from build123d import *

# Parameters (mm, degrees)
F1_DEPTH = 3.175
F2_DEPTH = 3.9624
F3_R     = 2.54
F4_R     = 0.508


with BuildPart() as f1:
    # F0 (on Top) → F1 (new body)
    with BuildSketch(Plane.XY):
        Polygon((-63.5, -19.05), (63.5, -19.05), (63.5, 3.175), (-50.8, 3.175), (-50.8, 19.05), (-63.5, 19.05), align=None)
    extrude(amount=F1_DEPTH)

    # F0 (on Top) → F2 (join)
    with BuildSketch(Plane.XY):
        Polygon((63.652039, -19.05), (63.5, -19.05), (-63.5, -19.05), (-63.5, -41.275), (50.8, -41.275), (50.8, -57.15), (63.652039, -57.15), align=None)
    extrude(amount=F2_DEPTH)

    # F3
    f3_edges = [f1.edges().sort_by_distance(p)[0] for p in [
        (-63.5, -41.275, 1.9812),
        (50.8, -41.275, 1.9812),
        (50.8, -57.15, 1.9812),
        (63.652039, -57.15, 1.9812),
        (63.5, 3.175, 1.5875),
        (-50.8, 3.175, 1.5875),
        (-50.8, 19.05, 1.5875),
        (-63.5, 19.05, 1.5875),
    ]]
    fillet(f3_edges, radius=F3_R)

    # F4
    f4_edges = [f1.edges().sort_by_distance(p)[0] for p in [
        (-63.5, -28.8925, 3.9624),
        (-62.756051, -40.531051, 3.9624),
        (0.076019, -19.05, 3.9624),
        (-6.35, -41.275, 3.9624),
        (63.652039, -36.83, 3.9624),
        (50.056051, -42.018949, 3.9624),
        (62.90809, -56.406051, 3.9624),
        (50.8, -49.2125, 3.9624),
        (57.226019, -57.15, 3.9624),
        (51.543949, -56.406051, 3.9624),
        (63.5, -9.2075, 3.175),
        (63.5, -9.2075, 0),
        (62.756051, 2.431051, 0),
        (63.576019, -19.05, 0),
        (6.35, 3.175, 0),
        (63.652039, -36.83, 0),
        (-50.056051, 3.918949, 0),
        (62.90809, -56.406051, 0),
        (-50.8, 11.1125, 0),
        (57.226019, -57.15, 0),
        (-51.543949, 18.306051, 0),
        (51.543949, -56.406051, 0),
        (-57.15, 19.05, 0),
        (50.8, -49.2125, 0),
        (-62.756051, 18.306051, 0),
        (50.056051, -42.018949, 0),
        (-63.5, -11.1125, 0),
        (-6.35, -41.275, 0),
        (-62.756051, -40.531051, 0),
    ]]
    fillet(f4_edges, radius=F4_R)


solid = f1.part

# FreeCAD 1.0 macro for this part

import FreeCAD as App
import Part
import Sketcher

V = App.Vector
Q = App.Units.Quantity


def edges_at(feature, points):
    """Names of the edges that pass closest to the given points."""
    edges = feature.Shape.Edges
    near = lambda p: min(range(len(edges)), key=lambda i: edges[i].distToShape(Part.Vertex(*p))[0])
    return sorted({f"Edge{near(p) + 1}" for p in points})


def add_polygon(sketch, points):
    """Adds a closed chain of lines whose ends are joined by coincident constraints."""
    first, n = sketch.GeometryCount, len(points)
    for a, b in zip(points, points[1:] + points[:1]):
        sketch.addGeometry(Part.LineSegment(App.Vector(*a, 0), App.Vector(*b, 0)), False)
    for i in range(n):
        sketch.addConstraint(Sketcher.Constraint("Coincident", first + i, 2, first + (i + 1) % n, 1))

doc = App.newDocument("Part")
body = doc.addObject("PartDesign::Body", "Body")

sketch1 = doc.addObject("Sketcher::SketchObject", "Sketch")
body.addObject(sketch1)
sketch1.AttachmentSupport = (doc.XY_Plane, [""])
sketch1.MapMode = "FlatFace"
add_polygon(sketch1, [(-64, -19), (64, -19), (64, 3), (-51, 3), (-51, 19), (-64, 19)])
sketch1.addConstraint(Sketcher.Constraint("Horizontal", 0))
sketch1.addConstraint(Sketcher.Constraint("Vertical", 1))
sketch1.addConstraint(Sketcher.Constraint("Horizontal", 2))
sketch1.addConstraint(Sketcher.Constraint("Vertical", 3))
sketch1.addConstraint(Sketcher.Constraint("Horizontal", 4))
sketch1.addConstraint(Sketcher.Constraint("Vertical", 5))
sketch1.addConstraint(Sketcher.Constraint("Symmetric", 0, 2, 4, 2, -1, 1))
sketch1.addConstraint(Sketcher.Constraint("DistanceX", 0, 1, 0, 2, Q("5 in")))
sketch1.addConstraint(Sketcher.Constraint("DistanceX", 2, 2, 2, 1, Q("4.5 in")))
sketch1.addConstraint(Sketcher.Constraint("DistanceY", 5, 2, 5, 1, Q("1.5 in")))
sketch1.addConstraint(Sketcher.Constraint("DistanceY", 1, 1, 1, 2, Q("0.875 in")))
pad1 = doc.addObject("PartDesign::Pad", "Pad")
body.addObject(pad1)
pad1.Profile = sketch1
pad1.Length = Q("0.125 in")

sketch2 = doc.addObject("Sketcher::SketchObject", "Sketch001")
body.addObject(sketch2)
sketch2.AttachmentSupport = (doc.XY_Plane, [""])
sketch2.MapMode = "FlatFace"
add_polygon(sketch2, [(64, -19), (-64, -19), (-64, -41), (51, -41), (51, -57), (64, -57)])
sketch2.addConstraint(Sketcher.Constraint("Horizontal", 0))
sketch2.addConstraint(Sketcher.Constraint("Vertical", 1))
sketch2.addConstraint(Sketcher.Constraint("Horizontal", 2))
sketch2.addConstraint(Sketcher.Constraint("Vertical", 3))
sketch2.addConstraint(Sketcher.Constraint("Horizontal", 4))
sketch2.addConstraint(Sketcher.Constraint("Vertical", 5))
sketch2.addConstraint(Sketcher.Constraint("DistanceX", 2, 1, 2, 2, Q("4.5 in")))
sketch2.addConstraint(Sketcher.Constraint("DistanceY", 5, 1, 5, 2, Q("1.5 in")))
sketch2.addConstraint(Sketcher.Constraint("DistanceX", -1, 1, 2, 2, Q("2 in")))
sketch2.addConstraint(Sketcher.Constraint("DistanceY", 1, 2, 1, 1, Q("0.875 in")))
sketch2.addConstraint(Sketcher.Constraint("DistanceY", 0, 2, -1, 1, Q("0.75 in")))
sketch2.addConstraint(Sketcher.Constraint("DistanceX", 0, 2, 0, 1, 127.152039))
pad2 = doc.addObject("PartDesign::Pad", "Pad001")
body.addObject(pad2)
pad2.Profile = sketch2
pad2.Length = Q("0.156 in")
doc.recompute()

fillet = doc.addObject("PartDesign::Fillet", "Fillet")
body.addObject(fillet)
fillet.Base = (pad2, edges_at(pad2, [
    (-63.5, -41.275, 1.981),
    (50.8, -41.275, 1.981),
    (50.8, -57.15, 1.981),
    (63.652, -57.15, 1.981),
    (63.5, 3.175, 1.587),
    (-50.8, 3.175, 1.587),
    (-50.8, 19.05, 1.587),
    (-63.5, 19.05, 1.587),
]))
fillet.Radius = Q("0.1 in")
doc.recompute()

fillet2 = doc.addObject("PartDesign::Fillet", "Fillet001")
body.addObject(fillet2)
fillet2.Base = (fillet, edges_at(fillet, [
    (-63.5, -28.892, 3.962),
    (-62.756, -40.531, 3.962),
    (0.076, -19.05, 3.962),
    (-6.35, -41.275, 3.962),
    (63.652, -36.83, 3.962),
    (50.056, -42.019, 3.962),
    (62.908, -56.406, 3.962),
    (50.8, -49.212, 3.962),
    (57.226, -57.15, 3.962),
    (51.544, -56.406, 3.962),
    (63.5, -9.207, 3.175),
    (63.5, -9.207, 0),
    (62.756, 2.431, 0),
    (63.576, -19.05, 0),
    (6.35, 3.175, 0),
    (63.652, -36.83, 0),
    (-50.056, 3.919, 0),
    (62.908, -56.406, 0),
    (-50.8, 11.113, 0),
    (57.226, -57.15, 0),
    (-51.544, 18.306, 0),
    (51.544, -56.406, 0),
    (-57.15, 19.05, 0),
    (50.8, -49.212, 0),
    (-62.756, 18.306, 0),
    (50.056, -42.019, 0),
    (-63.5, -11.113, 0),
    (-6.35, -41.275, 0),
    (-62.756, -40.531, 0),
]))
fillet2.Radius = Q("0.02 in")

doc.recompute()
